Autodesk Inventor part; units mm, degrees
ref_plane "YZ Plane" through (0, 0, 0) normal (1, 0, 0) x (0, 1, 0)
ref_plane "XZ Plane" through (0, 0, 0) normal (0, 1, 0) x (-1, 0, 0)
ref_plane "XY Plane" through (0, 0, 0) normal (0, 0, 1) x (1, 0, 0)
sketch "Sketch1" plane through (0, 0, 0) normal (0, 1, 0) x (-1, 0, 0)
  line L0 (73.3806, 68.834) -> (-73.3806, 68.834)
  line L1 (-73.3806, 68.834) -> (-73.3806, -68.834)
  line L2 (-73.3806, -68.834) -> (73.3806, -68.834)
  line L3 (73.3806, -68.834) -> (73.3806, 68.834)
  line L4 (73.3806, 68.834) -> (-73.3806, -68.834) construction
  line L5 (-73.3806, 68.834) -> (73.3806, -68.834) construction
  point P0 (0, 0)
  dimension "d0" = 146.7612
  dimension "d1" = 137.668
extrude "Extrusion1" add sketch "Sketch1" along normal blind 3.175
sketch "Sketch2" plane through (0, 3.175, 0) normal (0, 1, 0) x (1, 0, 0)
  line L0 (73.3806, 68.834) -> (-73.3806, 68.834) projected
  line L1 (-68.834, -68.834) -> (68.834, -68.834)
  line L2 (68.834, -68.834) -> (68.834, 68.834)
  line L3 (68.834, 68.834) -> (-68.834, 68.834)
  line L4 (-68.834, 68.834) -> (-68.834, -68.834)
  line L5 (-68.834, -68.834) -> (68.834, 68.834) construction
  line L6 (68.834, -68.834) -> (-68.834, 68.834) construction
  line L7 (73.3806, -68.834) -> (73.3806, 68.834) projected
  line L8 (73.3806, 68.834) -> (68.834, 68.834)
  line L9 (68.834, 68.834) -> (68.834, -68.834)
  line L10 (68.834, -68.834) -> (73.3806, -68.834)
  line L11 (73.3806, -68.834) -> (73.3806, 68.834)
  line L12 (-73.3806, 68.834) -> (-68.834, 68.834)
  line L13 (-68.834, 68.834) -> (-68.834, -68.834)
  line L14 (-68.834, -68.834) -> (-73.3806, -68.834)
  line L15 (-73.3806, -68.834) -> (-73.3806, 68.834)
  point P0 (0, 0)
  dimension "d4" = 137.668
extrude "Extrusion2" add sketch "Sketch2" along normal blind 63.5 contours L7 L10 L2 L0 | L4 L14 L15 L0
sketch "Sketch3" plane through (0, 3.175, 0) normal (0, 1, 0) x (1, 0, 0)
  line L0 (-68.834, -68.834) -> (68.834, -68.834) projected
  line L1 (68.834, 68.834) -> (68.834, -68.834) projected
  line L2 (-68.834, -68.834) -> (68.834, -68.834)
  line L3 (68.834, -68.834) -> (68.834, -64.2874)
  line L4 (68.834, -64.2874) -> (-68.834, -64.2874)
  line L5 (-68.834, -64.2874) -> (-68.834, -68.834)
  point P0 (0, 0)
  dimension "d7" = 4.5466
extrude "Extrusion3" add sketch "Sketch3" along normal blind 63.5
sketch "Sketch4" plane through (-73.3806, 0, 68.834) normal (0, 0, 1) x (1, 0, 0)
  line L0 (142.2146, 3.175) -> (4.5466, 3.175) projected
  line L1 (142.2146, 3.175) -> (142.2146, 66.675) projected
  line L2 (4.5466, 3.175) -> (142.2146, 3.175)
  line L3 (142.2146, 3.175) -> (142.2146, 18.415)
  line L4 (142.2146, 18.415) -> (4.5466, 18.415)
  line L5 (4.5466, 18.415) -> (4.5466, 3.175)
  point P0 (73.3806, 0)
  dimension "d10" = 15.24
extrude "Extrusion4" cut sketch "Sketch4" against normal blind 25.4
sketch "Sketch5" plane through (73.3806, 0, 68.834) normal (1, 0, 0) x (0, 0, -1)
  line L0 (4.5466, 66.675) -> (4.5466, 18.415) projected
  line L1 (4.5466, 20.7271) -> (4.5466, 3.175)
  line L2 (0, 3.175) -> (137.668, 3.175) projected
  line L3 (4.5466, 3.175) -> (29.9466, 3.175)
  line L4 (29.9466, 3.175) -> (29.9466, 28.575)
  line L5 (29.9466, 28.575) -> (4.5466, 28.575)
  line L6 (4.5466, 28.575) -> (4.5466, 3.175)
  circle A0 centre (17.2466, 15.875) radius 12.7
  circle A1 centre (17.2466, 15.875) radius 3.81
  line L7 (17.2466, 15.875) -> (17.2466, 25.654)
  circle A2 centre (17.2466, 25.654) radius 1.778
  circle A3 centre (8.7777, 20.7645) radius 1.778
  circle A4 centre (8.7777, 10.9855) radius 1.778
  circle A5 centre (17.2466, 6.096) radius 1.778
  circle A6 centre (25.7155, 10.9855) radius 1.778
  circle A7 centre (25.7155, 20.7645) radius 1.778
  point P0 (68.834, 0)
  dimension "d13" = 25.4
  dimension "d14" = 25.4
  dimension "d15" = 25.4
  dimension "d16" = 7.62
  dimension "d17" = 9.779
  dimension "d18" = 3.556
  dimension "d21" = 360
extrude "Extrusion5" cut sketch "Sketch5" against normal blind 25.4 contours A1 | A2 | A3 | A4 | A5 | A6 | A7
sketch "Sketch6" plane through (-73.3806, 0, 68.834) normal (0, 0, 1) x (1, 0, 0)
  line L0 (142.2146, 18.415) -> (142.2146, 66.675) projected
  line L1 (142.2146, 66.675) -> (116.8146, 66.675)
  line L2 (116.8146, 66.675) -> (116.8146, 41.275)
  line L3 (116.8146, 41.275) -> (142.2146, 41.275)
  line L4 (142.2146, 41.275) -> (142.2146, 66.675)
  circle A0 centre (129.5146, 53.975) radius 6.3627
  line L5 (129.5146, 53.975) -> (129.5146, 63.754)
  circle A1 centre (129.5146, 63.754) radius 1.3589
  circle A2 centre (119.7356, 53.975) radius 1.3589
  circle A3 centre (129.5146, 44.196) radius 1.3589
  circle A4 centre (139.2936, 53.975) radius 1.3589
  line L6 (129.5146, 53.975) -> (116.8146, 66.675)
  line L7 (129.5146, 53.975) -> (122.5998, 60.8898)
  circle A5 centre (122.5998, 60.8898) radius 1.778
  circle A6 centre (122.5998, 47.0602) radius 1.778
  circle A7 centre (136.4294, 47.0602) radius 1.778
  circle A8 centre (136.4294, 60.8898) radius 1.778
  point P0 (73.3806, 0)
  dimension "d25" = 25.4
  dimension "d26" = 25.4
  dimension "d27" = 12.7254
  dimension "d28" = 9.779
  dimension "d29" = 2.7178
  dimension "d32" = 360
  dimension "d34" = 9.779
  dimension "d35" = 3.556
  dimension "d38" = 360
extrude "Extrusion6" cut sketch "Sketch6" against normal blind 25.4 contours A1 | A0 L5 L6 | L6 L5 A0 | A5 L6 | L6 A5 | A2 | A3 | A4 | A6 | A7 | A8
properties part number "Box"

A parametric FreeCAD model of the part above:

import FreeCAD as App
import Part
import Sketcher

V = App.Vector
Q = App.Units.Quantity


def add_polygon(sketch, points):
    """Adds a closed chain of lines whose ends are joined by coincident constraints."""
    first, n = sketch.GeometryCount, len(points)
    for a, b in zip(points, points[1:] + points[:1]):
        sketch.addGeometry(Part.LineSegment(App.Vector(*a, 0), App.Vector(*b, 0)), False)
    for i in range(n):
        sketch.addConstraint(Sketcher.Constraint("Coincident", first + i, 2, first + (i + 1) % n, 1))

doc = App.newDocument("Part")
params = doc.addObject("Spreadsheet::Sheet", "Params")
for row, (alias, value) in enumerate([
    ("sketch1_height", "5.42 in"),
    ("sketch1_width", "5.778 in"),
    ("pad1_length", "0.125 in"),
    ("sketch2_height", "5.42 in"),
    ("sketch2_width", "0.179 in"),
    ("pad2_length", "2.5 in"),
    ("sketch3_height", "0.179 in"),
    ("sketch3_width", "5.42 in"),
    ("pad3_length", "2.5 in"),
    ("sketch4_height", "0.6 in"),
    ("sketch4_width", "5.42 in"),
    ("pocket1_length", "1 in"),
    ("sketch5_diameter", "0.3 in"),
    ("sketch5_diameter2", "0.14 in"),
    ("pocket2_length", "1 in"),
    ("sketch6_diameter", "0.14 in"),
    ("sketch6_diameter2", "0.107 in"),
    ("sketch6_diameter3", "0.501 in"),
    ("pocket3_length", "1 in"),
], start=1):
    params.set(f"A{row}", alias)
    params.set(f"B{row}", "=" + value)
    params.setAlias(f"B{row}", alias)

body = doc.addObject("PartDesign::Body", "Body")

# Sketch on XZ plane
sketch1 = body.newObject("Sketcher::SketchObject", "Sketch")
sketch1.AttachmentSupport = (doc.getObject("XZ_Plane"), [""])
sketch1.MapMode = "FlatFace"
add_polygon(sketch1, [(-73, -69), (-73, 69), (73, 69), (73, -69)])  # lines 0-3
sketch1.addConstraint([
    Sketcher.Constraint("Vertical", 0),
    Sketcher.Constraint("Horizontal", 1),
    Sketcher.Constraint("Vertical", 2),
    Sketcher.Constraint("Horizontal", 3),
    Sketcher.Constraint("Symmetric", 0, 2, 2, 2, -1, 1),
    Sketcher.Constraint("DistanceY", 0, 1, 0, 2, Q("5.42 in")),
    Sketcher.Constraint("DistanceX", 1, 1, 1, 2, Q("5.778 in")),
])
sketch1.setExpression("Constraints[9]", "Params.sketch1_height")
sketch1.setExpression("Constraints[10]", "Params.sketch1_width")
pad1 = body.newObject("PartDesign::Pad", "Pad")
pad1.Profile = sketch1
pad1.setExpression("Length", "Params.pad1_length")
pad1.Reversed = True

# Sketch on XZ plane
sketch2 = body.newObject("Sketcher::SketchObject", "Sketch001")
sketch2.AttachmentSupport = (doc.getObject("XZ_Plane"), [""])
sketch2.MapMode = "FlatFace"
sketch2.AttachmentOffset = App.Placement(V(0, 0, -0.125 * 25.4), App.Rotation())
add_polygon(sketch2, [(73.4, 68.8), (73.4, -68.8), (68.8, -68.8), (68.8, 68.8)])  # lines 0-3
add_polygon(sketch2, [(-68.8, 68.8), (-68.8, -68.8), (-73.4, -68.8), (-73.4, 68.8)])  # lines 4-7
sketch2.addConstraint([
    Sketcher.Constraint("Vertical", 0),
    Sketcher.Constraint("Horizontal", 1),
    Sketcher.Constraint("Vertical", 2),
    Sketcher.Constraint("Horizontal", 3),
    Sketcher.Constraint("Vertical", 4),
    Sketcher.Constraint("Horizontal", 5),
    Sketcher.Constraint("Vertical", 6),
    Sketcher.Constraint("Horizontal", 7),
    Sketcher.Constraint("Symmetric", 2, 2, 4, 2, -1, 1),
    Sketcher.Constraint("Symmetric", 0, 2, 6, 2, -1, 1),
    Sketcher.Constraint("Horizontal", 1, 2, 4, 2),
    Sketcher.Constraint("DistanceY", 0, 2, 0, 1, Q("5.42 in")),
    Sketcher.Constraint("DistanceX", 4, 2, 1, 2, Q("5.42 in")),
    Sketcher.Constraint("DistanceX", 1, 2, 1, 1, Q("0.179 in")),
])
sketch2.setExpression("Constraints[19]", "Params.sketch2_height")
sketch2.setExpression("Constraints[21]", "Params.sketch2_width")
pad2 = body.newObject("PartDesign::Pad", "Pad001")
pad2.Profile = sketch2
pad2.setExpression("Length", "Params.pad2_length")
pad2.Reversed = True

# Sketch on XZ plane
sketch3 = body.newObject("Sketcher::SketchObject", "Sketch002")
sketch3.AttachmentSupport = (doc.getObject("XZ_Plane"), [""])
sketch3.MapMode = "FlatFace"
sketch3.AttachmentOffset = App.Placement(V(0, 0, -0.125 * 25.4), App.Rotation())
add_polygon(sketch3, [(-68.8, 64.3), (-68.8, 68.8), (68.8, 68.8), (68.8, 64.3)])  # lines 0-3
sketch3.addConstraint([
    Sketcher.Constraint("Vertical", 0),
    Sketcher.Constraint("Horizontal", 1),
    Sketcher.Constraint("Vertical", 2),
    Sketcher.Constraint("Horizontal", 3),
    Sketcher.Constraint("DistanceY", 0, 1, 0, 2, Q("0.179 in")),
    Sketcher.Constraint("DistanceX", 1, 1, 1, 2, Q("5.42 in")),
    Sketcher.Constraint("DistanceX", 0, 2, -1, 1, Q("2.71 in")),
    Sketcher.Constraint("DistanceY", -1, 1, 0, 2, Q("2.71 in")),
])
sketch3.setExpression("Constraints[8]", "Params.sketch3_height")
sketch3.setExpression("Constraints[9]", "Params.sketch3_width")
pad3 = body.newObject("PartDesign::Pad", "Pad002")
pad3.Profile = sketch3
pad3.setExpression("Length", "Params.pad3_length")
pad3.Reversed = True

# Sketch on XY plane
sketch4 = body.newObject("Sketcher::SketchObject", "Sketch003")
sketch4.AttachmentSupport = (doc.getObject("XY_Plane"), [""])
sketch4.MapMode = "FlatFace"
sketch4.AttachmentOffset = App.Placement(V(0, 0, 2.71 * 25.4), App.Rotation())
add_polygon(sketch4, [(-69, 3), (69, 3), (69, 18), (-69, 18)])  # lines 0-3
sketch4.addConstraint([
    Sketcher.Constraint("Horizontal", 0),
    Sketcher.Constraint("Vertical", 1),
    Sketcher.Constraint("Horizontal", 2),
    Sketcher.Constraint("Vertical", 3),
    Sketcher.Constraint("DistanceY", 1, 1, 1, 2, Q("0.6 in")),
    Sketcher.Constraint("DistanceX", 0, 1, 0, 2, Q("5.42 in")),
    Sketcher.Constraint("DistanceX", -1, 1, 0, 2, Q("2.71 in")),
    Sketcher.Constraint("DistanceY", -1, 1, 0, 2, Q("0.125 in")),
])
sketch4.setExpression("Constraints[8]", "Params.sketch4_height")
sketch4.setExpression("Constraints[9]", "Params.sketch4_width")
pocket1 = body.newObject("PartDesign::Pocket", "Pocket")
pocket1.Profile = sketch4
pocket1.setExpression("Length", "Params.pocket1_length")

# Sketch on YZ plane
sketch5 = body.newObject("Sketcher::SketchObject", "Sketch004")
sketch5.AttachmentSupport = (doc.getObject("YZ_Plane"), [""])
sketch5.MapMode = "FlatFace"
sketch5.AttachmentOffset = App.Placement(V(0, 0, 2.889 * 25.4), App.Rotation())
sketch5.addGeometry([
    Part.Circle(V(15.9, 51.6, 0), V(0, 0, 1), 3.8),  # 0
    Part.Circle(V(25.7, 51.6, 0), V(0, 0, 1), 1.8),  # 1
    Part.Circle(V(20.8, 60.1, 0), V(0, 0, 1), 1.8),  # 2
    Part.Circle(V(11, 60.1, 0), V(0, 0, 1), 1.8),  # 3
    Part.Circle(V(6.1, 51.6, 0), V(0, 0, 1), 1.8),  # 4
    Part.Circle(V(11, 43.1, 0), V(0, 0, 1), 1.8),  # 5
    Part.Circle(V(20.8, 43.1, 0), V(0, 0, 1), 1.8),  # 6
], False)
sketch5.addConstraint([
    Sketcher.Constraint("Equal", 1, 2),
    Sketcher.Constraint("Equal", 2, 3),
    Sketcher.Constraint("Equal", 3, 4),
    Sketcher.Constraint("Equal", 4, 5),
    Sketcher.Constraint("Equal", 5, 6),
    Sketcher.Constraint("Horizontal", 0, 3, 1, 3),
    Sketcher.Constraint("Horizontal", 2, 3, 3, 3),
    Sketcher.Constraint("Horizontal", 1, 3, 4, 3),
    Sketcher.Constraint("Horizontal", 5, 3, 6, 3),
    Sketcher.Constraint("Vertical", 3, 3, 5, 3),
    Sketcher.Constraint("Vertical", 2, 3, 6, 3),
    Sketcher.Constraint("Diameter", 0, Q("0.3 in")),
    Sketcher.Constraint("Diameter", 1, Q("0.14 in")),
    Sketcher.Constraint("DistanceX", 0, 3, 1, 3, Q("0.385 in")),
    Sketcher.Constraint("DistanceX", 3, 3, 2, 3, Q("0.385 in")),
    Sketcher.Constraint("DistanceX", 4, 3, 0, 3, Q("0.385 in")),
    Sketcher.Constraint("DistanceX", -1, 1, 1, 3, Q("1.01 in")),
    Sketcher.Constraint("DistanceY", -1, 1, 0, 3, Q("2.031 in")),
    Sketcher.Constraint("DistanceX", -1, 1, 2, 3, Q("0.8175 in")),
    Sketcher.Constraint("DistanceY", -1, 1, 2, 3, Q("60.0563 mm")),
    Sketcher.Constraint("DistanceY", -1, 1, 5, 3, Q("43.1185 mm")),
])
sketch5.setExpression("Constraints[11]", "Params.sketch5_diameter")
sketch5.setExpression("Constraints[12]", "Params.sketch5_diameter2")
pocket2 = body.newObject("PartDesign::Pocket", "Pocket001")
pocket2.Profile = sketch5
pocket2.setExpression("Length", "Params.pocket2_length")

# Sketch on XY plane
sketch6 = body.newObject("Sketcher::SketchObject", "Sketch005")
sketch6.AttachmentSupport = (doc.getObject("XY_Plane"), [""])
sketch6.MapMode = "FlatFace"
sketch6.AttachmentOffset = App.Placement(V(0, 0, 2.71 * 25.4), App.Rotation())
sketch6.addGeometry([
    Part.Circle(V(56.1, 63.8, 0), V(0, 0, 1), 1.4),  # 0
    Part.Circle(V(56.1, 54, 0), V(0, 0, 1), 6.4),  # 1
    Part.Circle(V(49.2, 60.9, 0), V(0, 0, 1), 1.8),  # 2
    Part.Circle(V(46.4, 54, 0), V(0, 0, 1), 1.4),  # 3
    Part.Circle(V(56.1, 44.2, 0), V(0, 0, 1), 1.4),  # 4
    Part.Circle(V(65.9, 54, 0), V(0, 0, 1), 1.4),  # 5
    Part.Circle(V(49.2, 47.1, 0), V(0, 0, 1), 1.8),  # 6
    Part.Circle(V(63, 47.1, 0), V(0, 0, 1), 1.8),  # 7
    Part.Circle(V(63, 60.9, 0), V(0, 0, 1), 1.8),  # 8
], False)
sketch6.addConstraint([
    Sketcher.Constraint("Equal", 0, 3),
    Sketcher.Constraint("Equal", 3, 4),
    Sketcher.Constraint("Equal", 4, 5),
    Sketcher.Constraint("Equal", 2, 6),
    Sketcher.Constraint("Equal", 6, 7),
    Sketcher.Constraint("Equal", 7, 8),
    Sketcher.Constraint("Horizontal", 1, 3, 3, 3),
    Sketcher.Constraint("Horizontal", 3, 3, 5, 3),
    Sketcher.Constraint("Horizontal", 6, 3, 7, 3),
    Sketcher.Constraint("Horizontal", 2, 3, 8, 3),
    Sketcher.Constraint("Vertical", 0, 3, 1, 3),
    Sketcher.Constraint("Vertical", 1, 3, 4, 3),
    Sketcher.Constraint("Vertical", 2, 3, 6, 3),
    Sketcher.Constraint("Vertical", 7, 3, 8, 3),
    Sketcher.Constraint("Diameter", 2, Q("0.14 in")),
    Sketcher.Constraint("Diameter", 0, Q("0.107 in")),
    Sketcher.Constraint("Diameter", 1, Q("0.501 in")),
    Sketcher.Constraint("DistanceY", 1, 3, 0, 3, Q("0.385 in")),
    Sketcher.Constraint("DistanceX", 3, 3, 1, 3, Q("0.385 in")),
    Sketcher.Constraint("DistanceY", 4, 3, 1, 3, Q("0.385 in")),
    Sketcher.Constraint("DistanceX", 1, 3, 5, 3, Q("0.385 in")),
    Sketcher.Constraint("DistanceX", -1, 1, 0, 3, Q("2.21 in")),
    Sketcher.Constraint("DistanceY", -1, 1, 0, 3, Q("2.51 in")),
    Sketcher.Constraint("DistanceX", -1, 1, 2, 3, Q("49.2192 mm")),
    Sketcher.Constraint("DistanceY", -1, 1, 2, 3, Q("60.8898 mm")),
    Sketcher.Constraint("DistanceY", -1, 1, 6, 3, Q("47.0602 mm")),
    Sketcher.Constraint("DistanceX", -1, 1, 7, 3, Q("63.0488 mm")),
])
sketch6.setExpression("Constraints[14]", "Params.sketch6_diameter")
sketch6.setExpression("Constraints[15]", "Params.sketch6_diameter2")
sketch6.setExpression("Constraints[16]", "Params.sketch6_diameter3")
pocket3 = body.newObject("PartDesign::Pocket", "Pocket002")
pocket3.Profile = sketch6
pocket3.setExpression("Length", "Params.pocket3_length")

doc.recompute()
